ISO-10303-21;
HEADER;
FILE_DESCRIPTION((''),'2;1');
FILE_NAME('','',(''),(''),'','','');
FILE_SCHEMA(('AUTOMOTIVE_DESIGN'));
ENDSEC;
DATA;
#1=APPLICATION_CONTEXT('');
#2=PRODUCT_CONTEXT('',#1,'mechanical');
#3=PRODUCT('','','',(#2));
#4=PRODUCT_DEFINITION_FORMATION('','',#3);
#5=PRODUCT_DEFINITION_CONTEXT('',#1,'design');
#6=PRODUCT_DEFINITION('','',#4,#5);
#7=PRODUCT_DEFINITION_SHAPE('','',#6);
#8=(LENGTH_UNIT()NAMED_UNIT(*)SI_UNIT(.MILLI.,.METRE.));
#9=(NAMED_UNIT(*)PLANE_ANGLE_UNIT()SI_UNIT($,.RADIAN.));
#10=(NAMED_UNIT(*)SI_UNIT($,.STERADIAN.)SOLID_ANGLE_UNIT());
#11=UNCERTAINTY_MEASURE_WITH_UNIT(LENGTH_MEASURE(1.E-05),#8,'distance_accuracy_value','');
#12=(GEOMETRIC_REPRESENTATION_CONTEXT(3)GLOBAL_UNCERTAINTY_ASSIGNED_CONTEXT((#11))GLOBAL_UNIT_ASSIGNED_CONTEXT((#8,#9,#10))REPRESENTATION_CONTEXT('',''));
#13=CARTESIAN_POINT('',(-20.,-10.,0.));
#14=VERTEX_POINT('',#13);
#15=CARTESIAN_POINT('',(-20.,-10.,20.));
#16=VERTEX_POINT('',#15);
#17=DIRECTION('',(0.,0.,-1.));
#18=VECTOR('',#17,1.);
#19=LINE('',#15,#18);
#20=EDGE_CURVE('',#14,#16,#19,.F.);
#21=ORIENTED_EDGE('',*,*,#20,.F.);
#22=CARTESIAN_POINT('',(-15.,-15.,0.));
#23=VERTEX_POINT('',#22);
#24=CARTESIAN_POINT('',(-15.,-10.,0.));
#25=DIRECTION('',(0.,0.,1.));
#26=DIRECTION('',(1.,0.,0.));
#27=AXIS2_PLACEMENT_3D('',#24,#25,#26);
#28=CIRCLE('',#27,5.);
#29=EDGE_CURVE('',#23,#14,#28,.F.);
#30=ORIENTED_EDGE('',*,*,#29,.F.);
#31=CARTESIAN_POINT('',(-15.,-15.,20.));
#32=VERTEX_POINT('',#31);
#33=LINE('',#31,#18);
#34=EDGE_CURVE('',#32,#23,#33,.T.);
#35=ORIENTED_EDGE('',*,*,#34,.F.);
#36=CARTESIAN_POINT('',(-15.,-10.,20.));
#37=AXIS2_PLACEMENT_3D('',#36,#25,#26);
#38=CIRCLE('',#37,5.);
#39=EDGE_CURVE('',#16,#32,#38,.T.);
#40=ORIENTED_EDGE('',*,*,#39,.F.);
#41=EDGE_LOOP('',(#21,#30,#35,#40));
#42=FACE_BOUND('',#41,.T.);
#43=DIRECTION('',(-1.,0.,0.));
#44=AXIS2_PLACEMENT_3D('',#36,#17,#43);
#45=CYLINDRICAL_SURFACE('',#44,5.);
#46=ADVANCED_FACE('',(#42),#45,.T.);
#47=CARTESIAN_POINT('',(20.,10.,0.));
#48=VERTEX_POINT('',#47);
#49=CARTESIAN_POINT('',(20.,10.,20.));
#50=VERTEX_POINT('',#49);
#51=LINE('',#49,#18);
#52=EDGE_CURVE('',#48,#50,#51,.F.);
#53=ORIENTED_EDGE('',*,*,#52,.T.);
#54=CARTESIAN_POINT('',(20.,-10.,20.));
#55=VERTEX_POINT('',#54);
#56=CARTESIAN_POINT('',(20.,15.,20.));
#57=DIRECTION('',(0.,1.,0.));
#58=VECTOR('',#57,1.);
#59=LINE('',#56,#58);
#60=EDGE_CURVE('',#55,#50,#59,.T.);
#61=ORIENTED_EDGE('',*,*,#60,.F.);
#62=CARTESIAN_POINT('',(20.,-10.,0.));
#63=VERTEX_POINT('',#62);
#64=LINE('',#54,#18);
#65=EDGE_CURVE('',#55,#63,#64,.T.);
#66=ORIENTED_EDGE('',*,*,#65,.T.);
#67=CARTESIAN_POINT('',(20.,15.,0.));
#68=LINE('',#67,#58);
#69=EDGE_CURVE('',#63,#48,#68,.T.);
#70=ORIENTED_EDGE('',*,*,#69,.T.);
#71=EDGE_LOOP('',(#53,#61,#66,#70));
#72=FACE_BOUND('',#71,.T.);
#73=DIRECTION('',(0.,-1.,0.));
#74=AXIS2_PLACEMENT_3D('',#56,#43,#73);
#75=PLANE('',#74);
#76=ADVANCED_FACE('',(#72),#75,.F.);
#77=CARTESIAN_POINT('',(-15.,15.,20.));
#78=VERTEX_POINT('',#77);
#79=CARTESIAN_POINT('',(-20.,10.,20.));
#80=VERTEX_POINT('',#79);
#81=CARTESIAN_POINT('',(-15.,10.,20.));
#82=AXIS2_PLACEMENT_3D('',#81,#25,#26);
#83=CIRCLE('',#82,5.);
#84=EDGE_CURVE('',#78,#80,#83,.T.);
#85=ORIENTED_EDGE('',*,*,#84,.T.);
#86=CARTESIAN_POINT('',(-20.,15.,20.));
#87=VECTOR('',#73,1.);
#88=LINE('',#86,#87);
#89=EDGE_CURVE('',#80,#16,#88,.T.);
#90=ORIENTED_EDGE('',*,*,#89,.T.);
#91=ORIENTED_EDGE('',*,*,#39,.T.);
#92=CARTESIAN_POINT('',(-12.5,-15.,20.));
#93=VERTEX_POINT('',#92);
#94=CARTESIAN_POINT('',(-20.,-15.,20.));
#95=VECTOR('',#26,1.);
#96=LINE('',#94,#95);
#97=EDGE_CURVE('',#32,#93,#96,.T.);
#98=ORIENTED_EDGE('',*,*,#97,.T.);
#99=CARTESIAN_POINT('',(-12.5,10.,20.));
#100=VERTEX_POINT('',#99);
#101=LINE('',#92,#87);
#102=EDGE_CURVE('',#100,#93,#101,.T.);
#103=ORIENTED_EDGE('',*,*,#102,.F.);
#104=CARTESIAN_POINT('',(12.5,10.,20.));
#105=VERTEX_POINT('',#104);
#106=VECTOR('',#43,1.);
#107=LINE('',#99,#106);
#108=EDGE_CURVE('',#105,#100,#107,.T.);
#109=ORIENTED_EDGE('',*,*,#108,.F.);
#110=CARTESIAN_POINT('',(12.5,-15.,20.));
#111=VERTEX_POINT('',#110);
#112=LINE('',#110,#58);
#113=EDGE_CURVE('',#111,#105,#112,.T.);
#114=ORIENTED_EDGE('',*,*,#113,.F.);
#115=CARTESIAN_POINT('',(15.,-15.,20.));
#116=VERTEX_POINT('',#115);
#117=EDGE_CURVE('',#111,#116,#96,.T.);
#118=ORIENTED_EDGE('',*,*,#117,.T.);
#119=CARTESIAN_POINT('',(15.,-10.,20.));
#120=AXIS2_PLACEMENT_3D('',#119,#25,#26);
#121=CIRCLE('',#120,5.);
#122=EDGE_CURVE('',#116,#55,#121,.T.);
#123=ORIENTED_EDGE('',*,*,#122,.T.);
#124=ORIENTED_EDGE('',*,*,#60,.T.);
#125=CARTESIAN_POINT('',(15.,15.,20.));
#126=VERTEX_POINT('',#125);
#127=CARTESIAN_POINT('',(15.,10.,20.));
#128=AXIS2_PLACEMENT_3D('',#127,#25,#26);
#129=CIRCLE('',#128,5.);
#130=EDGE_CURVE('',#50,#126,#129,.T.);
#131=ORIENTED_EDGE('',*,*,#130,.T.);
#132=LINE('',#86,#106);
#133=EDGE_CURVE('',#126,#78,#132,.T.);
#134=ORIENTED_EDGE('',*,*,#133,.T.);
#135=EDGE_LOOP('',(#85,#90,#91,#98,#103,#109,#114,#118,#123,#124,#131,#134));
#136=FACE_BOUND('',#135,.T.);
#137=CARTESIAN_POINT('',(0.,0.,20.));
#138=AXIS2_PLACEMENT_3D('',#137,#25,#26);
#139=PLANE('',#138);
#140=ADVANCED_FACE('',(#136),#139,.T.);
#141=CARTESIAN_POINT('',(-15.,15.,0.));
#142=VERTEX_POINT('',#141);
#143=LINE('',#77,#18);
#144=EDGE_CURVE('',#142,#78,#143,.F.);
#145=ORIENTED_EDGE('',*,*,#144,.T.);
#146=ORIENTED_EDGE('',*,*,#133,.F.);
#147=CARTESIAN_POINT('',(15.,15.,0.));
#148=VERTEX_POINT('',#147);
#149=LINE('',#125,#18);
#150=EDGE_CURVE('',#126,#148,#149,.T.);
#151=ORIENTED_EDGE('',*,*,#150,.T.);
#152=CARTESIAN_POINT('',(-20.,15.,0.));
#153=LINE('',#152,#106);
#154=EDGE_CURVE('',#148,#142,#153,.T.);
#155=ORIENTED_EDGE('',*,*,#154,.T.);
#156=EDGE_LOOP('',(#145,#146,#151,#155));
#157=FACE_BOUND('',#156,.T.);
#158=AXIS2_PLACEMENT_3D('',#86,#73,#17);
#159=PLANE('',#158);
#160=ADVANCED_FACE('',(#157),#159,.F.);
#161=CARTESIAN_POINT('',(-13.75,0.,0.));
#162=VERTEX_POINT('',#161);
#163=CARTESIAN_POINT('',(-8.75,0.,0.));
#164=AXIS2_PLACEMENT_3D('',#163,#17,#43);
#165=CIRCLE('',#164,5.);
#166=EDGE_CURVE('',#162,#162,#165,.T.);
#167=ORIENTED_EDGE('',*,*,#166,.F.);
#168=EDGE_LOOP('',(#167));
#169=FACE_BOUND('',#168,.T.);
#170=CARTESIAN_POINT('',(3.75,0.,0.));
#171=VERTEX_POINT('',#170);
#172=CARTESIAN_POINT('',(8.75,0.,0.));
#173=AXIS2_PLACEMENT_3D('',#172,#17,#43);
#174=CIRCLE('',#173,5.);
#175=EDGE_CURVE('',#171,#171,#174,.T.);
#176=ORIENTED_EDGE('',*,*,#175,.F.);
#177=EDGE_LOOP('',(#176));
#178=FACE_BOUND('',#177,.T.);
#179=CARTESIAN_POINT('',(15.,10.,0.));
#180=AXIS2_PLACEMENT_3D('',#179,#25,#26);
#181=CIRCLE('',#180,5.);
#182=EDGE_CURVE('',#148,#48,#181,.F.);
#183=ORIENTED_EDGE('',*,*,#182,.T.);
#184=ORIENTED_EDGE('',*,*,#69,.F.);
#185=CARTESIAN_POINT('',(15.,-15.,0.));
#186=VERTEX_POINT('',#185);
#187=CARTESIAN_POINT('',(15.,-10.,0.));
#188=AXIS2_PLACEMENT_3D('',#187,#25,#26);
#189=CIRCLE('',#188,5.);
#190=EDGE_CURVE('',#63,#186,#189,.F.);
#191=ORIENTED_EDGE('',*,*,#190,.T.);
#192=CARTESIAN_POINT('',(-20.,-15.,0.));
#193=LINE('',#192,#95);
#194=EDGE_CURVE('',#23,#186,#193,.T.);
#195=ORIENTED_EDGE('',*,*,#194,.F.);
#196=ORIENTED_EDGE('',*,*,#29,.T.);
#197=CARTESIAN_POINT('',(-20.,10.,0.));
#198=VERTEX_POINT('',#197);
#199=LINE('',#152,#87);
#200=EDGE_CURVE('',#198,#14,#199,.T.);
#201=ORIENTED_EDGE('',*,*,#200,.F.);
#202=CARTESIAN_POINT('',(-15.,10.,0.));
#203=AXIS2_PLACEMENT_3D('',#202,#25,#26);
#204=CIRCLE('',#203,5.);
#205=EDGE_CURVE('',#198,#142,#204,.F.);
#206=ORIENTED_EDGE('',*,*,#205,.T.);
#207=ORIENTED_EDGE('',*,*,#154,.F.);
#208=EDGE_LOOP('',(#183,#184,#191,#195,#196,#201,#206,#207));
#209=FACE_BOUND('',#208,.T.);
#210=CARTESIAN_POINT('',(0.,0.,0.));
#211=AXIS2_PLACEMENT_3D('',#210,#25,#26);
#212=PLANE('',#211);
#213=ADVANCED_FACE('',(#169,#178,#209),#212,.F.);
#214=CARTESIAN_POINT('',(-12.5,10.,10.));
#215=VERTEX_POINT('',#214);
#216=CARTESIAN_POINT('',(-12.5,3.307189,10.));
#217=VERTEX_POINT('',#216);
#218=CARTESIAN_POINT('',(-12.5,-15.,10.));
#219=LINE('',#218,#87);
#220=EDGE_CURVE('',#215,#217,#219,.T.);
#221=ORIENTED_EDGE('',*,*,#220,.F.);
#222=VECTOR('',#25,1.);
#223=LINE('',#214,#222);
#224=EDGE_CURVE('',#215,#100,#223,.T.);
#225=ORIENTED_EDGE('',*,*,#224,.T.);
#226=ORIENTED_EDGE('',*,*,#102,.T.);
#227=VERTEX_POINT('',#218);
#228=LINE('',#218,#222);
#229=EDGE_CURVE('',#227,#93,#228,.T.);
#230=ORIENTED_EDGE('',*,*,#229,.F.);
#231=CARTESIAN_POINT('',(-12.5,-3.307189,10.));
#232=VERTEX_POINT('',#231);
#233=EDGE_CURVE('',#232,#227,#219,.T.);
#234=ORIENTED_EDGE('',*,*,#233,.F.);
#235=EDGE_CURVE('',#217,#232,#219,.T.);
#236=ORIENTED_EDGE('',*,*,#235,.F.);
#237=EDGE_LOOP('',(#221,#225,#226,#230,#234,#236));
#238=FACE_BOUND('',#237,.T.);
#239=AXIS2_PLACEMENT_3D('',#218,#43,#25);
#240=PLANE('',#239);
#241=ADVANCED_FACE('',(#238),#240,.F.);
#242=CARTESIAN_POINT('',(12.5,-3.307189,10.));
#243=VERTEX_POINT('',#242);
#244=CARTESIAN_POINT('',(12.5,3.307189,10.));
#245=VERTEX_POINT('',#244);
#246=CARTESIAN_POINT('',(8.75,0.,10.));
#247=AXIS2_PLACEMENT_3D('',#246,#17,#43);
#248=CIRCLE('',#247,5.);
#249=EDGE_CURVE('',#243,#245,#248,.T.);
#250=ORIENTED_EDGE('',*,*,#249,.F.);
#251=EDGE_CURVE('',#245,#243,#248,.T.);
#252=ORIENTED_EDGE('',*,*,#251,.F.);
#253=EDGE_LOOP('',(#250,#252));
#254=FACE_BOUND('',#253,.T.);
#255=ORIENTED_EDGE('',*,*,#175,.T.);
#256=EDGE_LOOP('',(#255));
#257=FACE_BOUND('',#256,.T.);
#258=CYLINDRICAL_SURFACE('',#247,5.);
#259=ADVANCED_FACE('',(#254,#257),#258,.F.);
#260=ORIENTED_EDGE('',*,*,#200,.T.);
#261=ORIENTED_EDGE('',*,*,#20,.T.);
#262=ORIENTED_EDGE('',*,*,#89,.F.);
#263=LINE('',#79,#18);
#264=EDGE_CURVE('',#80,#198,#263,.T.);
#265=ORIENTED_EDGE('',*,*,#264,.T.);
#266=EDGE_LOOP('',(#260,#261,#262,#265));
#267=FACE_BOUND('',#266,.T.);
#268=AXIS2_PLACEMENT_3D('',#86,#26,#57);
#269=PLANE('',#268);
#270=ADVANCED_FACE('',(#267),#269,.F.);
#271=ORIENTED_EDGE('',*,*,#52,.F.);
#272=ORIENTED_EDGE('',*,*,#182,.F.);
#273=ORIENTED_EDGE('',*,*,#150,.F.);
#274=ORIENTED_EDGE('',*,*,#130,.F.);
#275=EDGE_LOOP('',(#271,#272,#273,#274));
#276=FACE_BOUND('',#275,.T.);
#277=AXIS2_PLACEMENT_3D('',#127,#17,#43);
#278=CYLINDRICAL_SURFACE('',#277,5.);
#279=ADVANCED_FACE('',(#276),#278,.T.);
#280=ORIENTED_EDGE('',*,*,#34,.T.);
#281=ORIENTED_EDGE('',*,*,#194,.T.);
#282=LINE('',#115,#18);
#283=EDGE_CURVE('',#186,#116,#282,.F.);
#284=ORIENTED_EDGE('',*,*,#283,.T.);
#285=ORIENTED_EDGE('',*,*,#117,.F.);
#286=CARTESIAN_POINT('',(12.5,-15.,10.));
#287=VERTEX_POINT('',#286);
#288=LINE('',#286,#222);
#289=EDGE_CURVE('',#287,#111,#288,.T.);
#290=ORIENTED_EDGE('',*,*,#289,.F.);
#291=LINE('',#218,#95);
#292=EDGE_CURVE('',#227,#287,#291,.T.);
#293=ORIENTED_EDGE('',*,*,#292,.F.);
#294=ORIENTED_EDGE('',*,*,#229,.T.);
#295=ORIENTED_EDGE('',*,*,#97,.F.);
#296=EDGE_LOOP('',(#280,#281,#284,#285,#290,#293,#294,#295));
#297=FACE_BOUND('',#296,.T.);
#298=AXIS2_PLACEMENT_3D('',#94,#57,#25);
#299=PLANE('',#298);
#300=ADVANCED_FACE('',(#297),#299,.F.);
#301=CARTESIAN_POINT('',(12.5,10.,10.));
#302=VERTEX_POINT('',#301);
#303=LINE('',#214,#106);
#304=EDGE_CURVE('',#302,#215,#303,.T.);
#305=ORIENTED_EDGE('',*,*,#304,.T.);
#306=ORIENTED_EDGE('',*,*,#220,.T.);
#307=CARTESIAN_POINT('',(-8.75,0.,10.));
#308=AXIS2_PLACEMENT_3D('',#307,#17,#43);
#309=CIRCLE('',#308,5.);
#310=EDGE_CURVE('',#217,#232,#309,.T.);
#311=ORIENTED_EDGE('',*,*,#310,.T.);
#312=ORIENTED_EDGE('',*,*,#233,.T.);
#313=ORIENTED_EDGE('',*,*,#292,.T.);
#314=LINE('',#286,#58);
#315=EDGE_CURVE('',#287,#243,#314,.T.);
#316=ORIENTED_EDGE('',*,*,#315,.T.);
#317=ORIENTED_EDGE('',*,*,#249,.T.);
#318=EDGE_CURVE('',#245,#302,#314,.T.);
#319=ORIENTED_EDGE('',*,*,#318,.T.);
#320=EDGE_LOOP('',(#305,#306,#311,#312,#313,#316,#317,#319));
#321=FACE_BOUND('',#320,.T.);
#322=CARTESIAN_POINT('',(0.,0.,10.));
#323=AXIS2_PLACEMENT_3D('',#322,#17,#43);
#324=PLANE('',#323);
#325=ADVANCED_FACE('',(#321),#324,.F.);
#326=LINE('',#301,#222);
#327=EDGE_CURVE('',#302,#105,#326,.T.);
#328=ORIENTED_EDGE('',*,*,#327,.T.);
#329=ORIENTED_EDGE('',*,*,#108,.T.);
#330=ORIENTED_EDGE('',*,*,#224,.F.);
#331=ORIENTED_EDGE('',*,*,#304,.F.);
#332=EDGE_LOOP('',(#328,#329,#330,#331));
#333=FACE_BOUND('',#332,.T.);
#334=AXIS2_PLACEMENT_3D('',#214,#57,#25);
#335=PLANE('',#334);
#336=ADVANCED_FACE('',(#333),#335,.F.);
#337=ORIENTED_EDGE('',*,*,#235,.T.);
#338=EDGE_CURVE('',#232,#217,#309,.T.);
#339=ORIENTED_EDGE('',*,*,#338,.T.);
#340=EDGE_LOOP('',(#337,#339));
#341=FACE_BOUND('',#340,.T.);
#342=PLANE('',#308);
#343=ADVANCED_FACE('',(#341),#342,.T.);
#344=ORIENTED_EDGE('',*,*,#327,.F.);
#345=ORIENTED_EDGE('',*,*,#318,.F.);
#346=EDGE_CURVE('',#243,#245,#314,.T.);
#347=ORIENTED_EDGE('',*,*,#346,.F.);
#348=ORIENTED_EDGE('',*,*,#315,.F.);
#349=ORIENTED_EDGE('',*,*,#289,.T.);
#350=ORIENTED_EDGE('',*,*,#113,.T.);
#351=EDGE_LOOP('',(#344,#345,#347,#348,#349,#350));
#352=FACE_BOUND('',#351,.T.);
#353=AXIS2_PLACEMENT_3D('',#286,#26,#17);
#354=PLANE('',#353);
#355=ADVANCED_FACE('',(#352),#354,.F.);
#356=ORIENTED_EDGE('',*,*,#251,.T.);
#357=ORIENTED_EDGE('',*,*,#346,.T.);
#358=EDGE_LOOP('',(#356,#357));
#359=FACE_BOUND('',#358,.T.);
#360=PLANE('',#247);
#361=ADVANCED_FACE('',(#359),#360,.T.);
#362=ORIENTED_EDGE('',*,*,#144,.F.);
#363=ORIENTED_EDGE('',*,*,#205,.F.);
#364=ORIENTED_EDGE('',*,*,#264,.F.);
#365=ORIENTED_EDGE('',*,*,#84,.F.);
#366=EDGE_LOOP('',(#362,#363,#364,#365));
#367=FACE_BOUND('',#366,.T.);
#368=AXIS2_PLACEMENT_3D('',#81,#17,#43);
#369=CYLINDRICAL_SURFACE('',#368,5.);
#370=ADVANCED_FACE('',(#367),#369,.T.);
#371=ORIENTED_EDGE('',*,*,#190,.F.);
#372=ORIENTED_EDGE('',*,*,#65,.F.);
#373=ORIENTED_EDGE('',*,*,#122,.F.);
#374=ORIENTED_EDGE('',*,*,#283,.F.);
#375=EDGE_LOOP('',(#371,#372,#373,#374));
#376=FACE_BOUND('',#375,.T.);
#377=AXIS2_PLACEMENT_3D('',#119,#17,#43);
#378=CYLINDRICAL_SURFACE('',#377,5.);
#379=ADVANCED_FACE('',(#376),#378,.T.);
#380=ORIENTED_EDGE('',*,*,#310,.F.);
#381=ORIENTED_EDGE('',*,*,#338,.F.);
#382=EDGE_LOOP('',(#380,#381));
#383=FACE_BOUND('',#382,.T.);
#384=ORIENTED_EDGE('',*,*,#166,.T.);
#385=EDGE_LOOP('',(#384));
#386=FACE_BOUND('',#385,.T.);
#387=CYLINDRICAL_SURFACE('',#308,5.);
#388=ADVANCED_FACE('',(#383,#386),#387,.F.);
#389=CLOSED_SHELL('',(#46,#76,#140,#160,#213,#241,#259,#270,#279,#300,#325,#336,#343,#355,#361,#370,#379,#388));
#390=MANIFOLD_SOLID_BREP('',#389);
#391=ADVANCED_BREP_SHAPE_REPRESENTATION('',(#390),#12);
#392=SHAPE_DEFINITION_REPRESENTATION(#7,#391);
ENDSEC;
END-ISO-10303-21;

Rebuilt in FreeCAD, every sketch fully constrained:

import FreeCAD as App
import Part
import Sketcher


def edges_at(feature, points):
    """Names of the edges that pass closest to the given points."""
    edges = feature.Shape.Edges
    near = lambda p: min(range(len(edges)), key=lambda i: edges[i].distToShape(Part.Vertex(*p))[0])
    return sorted({f"Edge{near(p) + 1}" for p in points})


def add_polygon(sketch, points):
    """Adds a closed chain of lines whose ends are joined by coincident constraints."""
    first, n = sketch.GeometryCount, len(points)
    for a, b in zip(points, points[1:] + points[:1]):
        sketch.addGeometry(Part.LineSegment(App.Vector(*a, 0), App.Vector(*b, 0)), False)
    for i in range(n):
        sketch.addConstraint(Sketcher.Constraint("Coincident", first + i, 2, first + (i + 1) % n, 1))

doc = App.newDocument("Part")
params = doc.addObject("Spreadsheet::Sheet", "Params")
for row, (alias, value) in enumerate([
    ("sketch1_width", "40 mm"),
    ("sketch1_height", "30 mm"),
    ("pad1_length", "20 mm"),
    ("fillet_radius", "5 mm"),
    ("sketch2_diameter", "10 mm"),
    ("pocket1_length", "10 mm"),
    ("sketch3_width", "25 mm"),
    ("pocket2_length", "10 mm"),
], start=1):
    params.set(f"A{row}", alias)
    params.set(f"B{row}", "=" + value)
    params.setAlias(f"B{row}", alias)

body = doc.addObject("PartDesign::Body", "Body")

sketch1 = body.newObject("Sketcher::SketchObject", "Sketch")
sketch1.AttachmentSupport = (doc.getObject("XY_Plane"), [""])
sketch1.MapMode = "FlatFace"
add_polygon(sketch1, [(-20, 15), (-20, -15), (20, -15), (20, 15)])
sketch1.addConstraint([
    Sketcher.Constraint("Vertical", 0),
    Sketcher.Constraint("Horizontal", 1),
    Sketcher.Constraint("Vertical", 2),
    Sketcher.Constraint("Horizontal", 3),
    Sketcher.Constraint("Symmetric", 0, 2, 2, 2, -1, 1),
    Sketcher.Constraint("DistanceX", 1, 1, 1, 2, 40.0),
    Sketcher.Constraint("DistanceY", 0, 2, 0, 1, 30.0),
])
sketch1.setExpression("Constraints[9]", "Params.sketch1_width")
sketch1.setExpression("Constraints[10]", "Params.sketch1_height")
pad1 = body.newObject("PartDesign::Pad", "Pad")
pad1.Profile = sketch1
pad1.setExpression("Length", "Params.pad1_length")
doc.recompute()

fillet = body.newObject("PartDesign::Fillet", "Fillet")
fillet.Base = (pad1, edges_at(pad1, [
    (20, -15, 10),
    (-20, -15, 10),
    (-20, 15, 10),
    (20, 15, 10),
]))
fillet.setExpression("Radius", "Params.fillet_radius")

sketch2 = body.newObject("Sketcher::SketchObject", "Sketch001")
sketch2.AttachmentSupport = (doc.getObject("XY_Plane"), [""])
sketch2.MapMode = "FlatFace"
sketch2.addGeometry([
    Part.Circle(App.Vector(8.75, 0, 0), App.Vector(0, 0, 1), 5),
    Part.Circle(App.Vector(-8.75, 0, 0), App.Vector(0, 0, 1), 5),
], False)
sketch2.addConstraint([
    Sketcher.Constraint("Equal", 0, 1),
    Sketcher.Constraint("Symmetric", 0, 3, 1, 3, -1, 1),
    Sketcher.Constraint("PointOnObject", 0, 3, -1),
    Sketcher.Constraint("Diameter", 0, 10.0),
    Sketcher.Constraint("DistanceX", 1, 3, 0, 3, 17.5),
])
sketch2.setExpression("Constraints[3]", "Params.sketch2_diameter")
pocket1 = body.newObject("PartDesign::Pocket", "Pocket")
pocket1.Profile = sketch2
pocket1.setExpression("Length", "Params.pocket1_length")
pocket1.Reversed = True

sketch3 = body.newObject("Sketcher::SketchObject", "Sketch002")
sketch3.AttachmentSupport = (doc.getObject("XY_Plane"), [""])
sketch3.MapMode = "FlatFace"
sketch3.AttachmentOffset = App.Placement(App.Vector(0, 0, 20), App.Rotation())
add_polygon(sketch3, [(-12.5, 10), (-12.5, -15), (12.5, -15), (12.5, 10)])
sketch3.addConstraint([
    Sketcher.Constraint("Vertical", 0),
    Sketcher.Constraint("Horizontal", 1),
    Sketcher.Constraint("Vertical", 2),
    Sketcher.Constraint("Horizontal", 3),
    Sketcher.Constraint("Equal", 3, 0),
    Sketcher.Constraint("DistanceX", 1, 1, 1, 2, 25.0),
    Sketcher.Constraint("DistanceY", 0, 2, -1, 1, 15.0),
    Sketcher.Constraint("DistanceX", 0, 2, -1, 1, 12.5),
])
sketch3.setExpression("Constraints[9]", "Params.sketch3_width")
pocket2 = body.newObject("PartDesign::Pocket", "Pocket001")
pocket2.Profile = sketch3
pocket2.setExpression("Length", "Params.pocket2_length")

doc.recompute()
